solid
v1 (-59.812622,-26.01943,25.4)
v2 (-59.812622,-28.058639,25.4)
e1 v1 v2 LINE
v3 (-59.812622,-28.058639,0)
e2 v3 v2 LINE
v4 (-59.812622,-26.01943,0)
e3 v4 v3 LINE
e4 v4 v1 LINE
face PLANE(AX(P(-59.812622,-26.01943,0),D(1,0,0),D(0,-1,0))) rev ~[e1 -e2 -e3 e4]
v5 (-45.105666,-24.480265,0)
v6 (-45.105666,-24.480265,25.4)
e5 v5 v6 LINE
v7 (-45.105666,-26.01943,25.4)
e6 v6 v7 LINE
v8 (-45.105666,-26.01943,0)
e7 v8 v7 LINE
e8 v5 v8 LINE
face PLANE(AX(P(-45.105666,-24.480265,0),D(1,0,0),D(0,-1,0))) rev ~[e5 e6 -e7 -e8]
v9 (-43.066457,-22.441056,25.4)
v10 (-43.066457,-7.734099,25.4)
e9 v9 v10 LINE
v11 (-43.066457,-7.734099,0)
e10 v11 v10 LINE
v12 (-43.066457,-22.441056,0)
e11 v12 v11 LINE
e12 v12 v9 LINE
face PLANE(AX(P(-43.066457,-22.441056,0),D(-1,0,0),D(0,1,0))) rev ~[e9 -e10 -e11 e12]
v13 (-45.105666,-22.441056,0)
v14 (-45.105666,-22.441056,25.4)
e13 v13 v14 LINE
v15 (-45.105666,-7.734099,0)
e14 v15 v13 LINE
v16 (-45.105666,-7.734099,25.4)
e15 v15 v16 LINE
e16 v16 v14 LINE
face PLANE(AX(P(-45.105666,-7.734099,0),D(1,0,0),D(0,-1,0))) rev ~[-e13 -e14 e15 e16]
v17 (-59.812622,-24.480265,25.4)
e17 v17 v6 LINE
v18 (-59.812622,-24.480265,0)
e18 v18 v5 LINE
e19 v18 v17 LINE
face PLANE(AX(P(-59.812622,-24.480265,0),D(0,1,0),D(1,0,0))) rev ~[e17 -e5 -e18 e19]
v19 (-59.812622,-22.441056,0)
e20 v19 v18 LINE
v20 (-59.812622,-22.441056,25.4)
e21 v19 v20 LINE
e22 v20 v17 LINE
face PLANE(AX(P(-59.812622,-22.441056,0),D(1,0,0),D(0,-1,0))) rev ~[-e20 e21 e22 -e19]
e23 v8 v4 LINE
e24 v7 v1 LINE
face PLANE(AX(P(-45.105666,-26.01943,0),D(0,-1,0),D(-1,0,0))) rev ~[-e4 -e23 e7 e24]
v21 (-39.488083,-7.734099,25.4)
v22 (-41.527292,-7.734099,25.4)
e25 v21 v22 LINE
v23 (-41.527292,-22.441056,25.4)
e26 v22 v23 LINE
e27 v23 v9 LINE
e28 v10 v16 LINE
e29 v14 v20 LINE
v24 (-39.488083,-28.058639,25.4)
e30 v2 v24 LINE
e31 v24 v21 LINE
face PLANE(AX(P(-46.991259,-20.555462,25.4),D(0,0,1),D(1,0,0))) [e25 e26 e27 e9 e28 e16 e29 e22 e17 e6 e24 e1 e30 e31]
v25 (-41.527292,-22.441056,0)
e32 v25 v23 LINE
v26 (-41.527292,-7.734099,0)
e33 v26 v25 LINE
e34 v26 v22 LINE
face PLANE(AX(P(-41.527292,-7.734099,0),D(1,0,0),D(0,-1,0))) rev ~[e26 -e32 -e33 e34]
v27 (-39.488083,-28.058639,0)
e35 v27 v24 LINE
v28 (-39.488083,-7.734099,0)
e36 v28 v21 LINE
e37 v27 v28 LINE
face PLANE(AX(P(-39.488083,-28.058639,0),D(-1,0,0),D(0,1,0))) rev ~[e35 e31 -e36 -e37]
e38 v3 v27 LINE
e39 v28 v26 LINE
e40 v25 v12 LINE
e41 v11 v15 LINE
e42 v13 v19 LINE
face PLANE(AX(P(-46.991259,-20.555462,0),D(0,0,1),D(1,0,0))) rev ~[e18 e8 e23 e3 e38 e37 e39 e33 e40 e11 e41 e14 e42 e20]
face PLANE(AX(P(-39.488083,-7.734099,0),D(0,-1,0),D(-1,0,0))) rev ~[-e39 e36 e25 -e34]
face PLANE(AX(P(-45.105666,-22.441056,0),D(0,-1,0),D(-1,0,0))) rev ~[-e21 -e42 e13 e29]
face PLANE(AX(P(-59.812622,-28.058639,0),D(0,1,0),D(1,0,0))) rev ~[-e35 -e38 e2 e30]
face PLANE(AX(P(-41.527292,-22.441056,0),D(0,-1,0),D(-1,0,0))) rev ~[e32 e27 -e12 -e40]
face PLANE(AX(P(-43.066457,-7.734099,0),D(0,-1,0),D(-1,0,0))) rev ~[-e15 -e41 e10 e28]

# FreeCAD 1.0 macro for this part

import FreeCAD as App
import Part
import Sketcher

V = App.Vector
Q = App.Units.Quantity


def add_polygon(sketch, points):
    """Adds a closed chain of lines whose ends are joined by coincident constraints."""
    first, n = sketch.GeometryCount, len(points)
    for a, b in zip(points, points[1:] + points[:1]):
        sketch.addGeometry(Part.LineSegment(App.Vector(*a, 0), App.Vector(*b, 0)), False)
    for i in range(n):
        sketch.addConstraint(Sketcher.Constraint("Coincident", first + i, 2, first + (i + 1) % n, 1))

doc = App.newDocument("Part")
body = doc.addObject("PartDesign::Body", "Body")

# Sketch on XY plane
sketch1 = doc.addObject("Sketcher::SketchObject", "Sketch")
body.addObject(sketch1)
sketch1.AttachmentSupport = (doc.XY_Plane, [""])
sketch1.MapMode = "FlatFace"
add_polygon(sketch1, [(-59.8, -26), (-59.8, -28.1), (-39.5, -28.1), (-39.5, -7.7), (-41.5, -7.7), (-41.5, -22.4), (-43.1, -22.4), (-43.1, -7.7), (-45.1, -7.7), (-45.1, -22.4), (-59.8, -22.4), (-59.8, -24.5), (-45.1, -24.5), (-45.1, -26)])  # lines 0-13
sketch1.addConstraint(Sketcher.Constraint("Vertical", 0))
sketch1.addConstraint(Sketcher.Constraint("Horizontal", 1))
sketch1.addConstraint(Sketcher.Constraint("Vertical", 2))
sketch1.addConstraint(Sketcher.Constraint("Horizontal", 3))
sketch1.addConstraint(Sketcher.Constraint("Vertical", 4))
sketch1.addConstraint(Sketcher.Constraint("Horizontal", 5))
sketch1.addConstraint(Sketcher.Constraint("Vertical", 6))
sketch1.addConstraint(Sketcher.Constraint("Horizontal", 7))
sketch1.addConstraint(Sketcher.Constraint("Vertical", 8))
sketch1.addConstraint(Sketcher.Constraint("Horizontal", 9))
sketch1.addConstraint(Sketcher.Constraint("Vertical", 10))
sketch1.addConstraint(Sketcher.Constraint("Horizontal", 11))
sketch1.addConstraint(Sketcher.Constraint("Vertical", 12))
sketch1.addConstraint(Sketcher.Constraint("Horizontal", 13))
sketch1.addConstraint(Sketcher.Constraint("Horizontal", 3, 2, 6, 2))
sketch1.addConstraint(Sketcher.Constraint("Horizontal", 5, 2, 8, 2))
sketch1.addConstraint(Sketcher.Constraint("Vertical", 0, 2, 9, 2))
sketch1.addConstraint(Sketcher.Constraint("Vertical", 8, 2, 11, 2))
sketch1.addConstraint(Sketcher.Constraint("Equal", 3, 7))
sketch1.addConstraint(Sketcher.Constraint("Equal", 7, 0))
sketch1.addConstraint(Sketcher.Constraint("Equal", 1, 2))
sketch1.addConstraint(Sketcher.Constraint("Equal", 13, 4))
sketch1.addConstraint(Sketcher.Constraint("Equal", 0, 10))
sketch1.addConstraint(Sketcher.Constraint("DistanceX", 1, 1, 1, 2, Q("20.324539 mm")))
sketch1.addConstraint(Sketcher.Constraint("DistanceX", 3, 2, 3, 1, Q("2.039209 mm")))
sketch1.addConstraint(Sketcher.Constraint("DistanceY", 2, 2, -1, 1, Q("7.734099 mm")))
sketch1.addConstraint(Sketcher.Constraint("DistanceX", 5, 2, 5, 1, Q("1.539165 mm")))
sketch1.addConstraint(Sketcher.Constraint("DistanceX", 0, 2, -1, 1, Q("59.812622 mm")))
pad1 = doc.addObject("PartDesign::Pad", "Pad")
body.addObject(pad1)
pad1.Profile = sketch1
pad1.Length = Q("1 in")

doc.recompute()
